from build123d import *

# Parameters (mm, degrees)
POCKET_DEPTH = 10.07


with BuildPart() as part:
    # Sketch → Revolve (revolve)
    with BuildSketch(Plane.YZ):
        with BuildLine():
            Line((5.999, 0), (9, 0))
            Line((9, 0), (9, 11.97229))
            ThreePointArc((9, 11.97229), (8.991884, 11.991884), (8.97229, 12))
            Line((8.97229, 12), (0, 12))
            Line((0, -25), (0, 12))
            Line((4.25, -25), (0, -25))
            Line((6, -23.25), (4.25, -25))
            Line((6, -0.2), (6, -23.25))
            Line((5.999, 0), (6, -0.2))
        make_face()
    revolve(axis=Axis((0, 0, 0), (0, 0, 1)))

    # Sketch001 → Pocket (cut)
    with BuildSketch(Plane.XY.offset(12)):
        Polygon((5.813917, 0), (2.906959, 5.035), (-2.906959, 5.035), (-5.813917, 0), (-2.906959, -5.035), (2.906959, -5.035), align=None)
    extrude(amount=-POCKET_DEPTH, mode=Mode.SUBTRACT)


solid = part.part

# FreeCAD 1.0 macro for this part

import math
import FreeCAD as App
import Part
import Sketcher

V = App.Vector
Q = App.Units.Quantity


def add_polygon(sketch, points):
    """Adds a closed chain of lines whose ends are joined by coincident constraints."""
    first, n = sketch.GeometryCount, len(points)
    for a, b in zip(points, points[1:] + points[:1]):
        sketch.addGeometry(Part.LineSegment(App.Vector(*a, 0), App.Vector(*b, 0)), False)
    for i in range(n):
        sketch.addConstraint(Sketcher.Constraint("Coincident", first + i, 2, first + (i + 1) % n, 1))

doc = App.newDocument("Part")
body = doc.addObject("PartDesign::Body", "Body")

sketch1 = body.newObject("Sketcher::SketchObject", "Sketch")
sketch1.AttachmentSupport = (doc.getObject("YZ_Plane"), [""])
sketch1.MapMode = "FlatFace"
sketch1.addGeometry(Part.LineSegment(V(5.999, 0, 0), V(9, 0, 0)), False)
sketch1.addGeometry(Part.LineSegment(V(9, 0, 0), V(9, 11.97229, 0)), False)
sketch1.addGeometry(Part.ArcOfCircle(Part.Circle(V(8.97229, 11.97229, 0), V(0, 0, 1), 0.02771), math.radians(-0.000502), math.radians(90.000502)), False)
sketch1.addGeometry(Part.LineSegment(V(8.97229, 12, 0), V(0, 12, 0)), False)
sketch1.addGeometry(Part.LineSegment(V(0, 12, 0), V(0, -25, 0)), False)
sketch1.addGeometry(Part.LineSegment(V(0, -25, 0), V(4.25, -25, 0)), False)
sketch1.addGeometry(Part.LineSegment(V(4.25, -25, 0), V(6, -23.25, 0)), False)
sketch1.addGeometry(Part.LineSegment(V(6, -23.25, 0), V(6, -0.2, 0)), False)
sketch1.addGeometry(Part.LineSegment(V(6, -0.2, 0), V(5.999, 0, 0)), False)
sketch1.addConstraint(Sketcher.Constraint("Coincident", 0, 2, 1, 1))
sketch1.addConstraint(Sketcher.Constraint("Coincident", 1, 2, 2, 1))
sketch1.addConstraint(Sketcher.Constraint("Coincident", 2, 2, 3, 1))
sketch1.addConstraint(Sketcher.Constraint("Coincident", 3, 2, 4, 1))
sketch1.addConstraint(Sketcher.Constraint("Coincident", 4, 2, 5, 1))
sketch1.addConstraint(Sketcher.Constraint("Coincident", 5, 2, 6, 1))
sketch1.addConstraint(Sketcher.Constraint("Coincident", 6, 2, 7, 1))
sketch1.addConstraint(Sketcher.Constraint("Coincident", 7, 2, 8, 1))
sketch1.addConstraint(Sketcher.Constraint("Coincident", 8, 2, 0, 1))
sketch1.addConstraint(Sketcher.Constraint("Horizontal", 0))
sketch1.addConstraint(Sketcher.Constraint("Vertical", 1))
sketch1.addConstraint(Sketcher.Constraint("Horizontal", 3))
sketch1.addConstraint(Sketcher.Constraint("Vertical", 4))
sketch1.addConstraint(Sketcher.Constraint("Horizontal", 5))
sketch1.addConstraint(Sketcher.Constraint("Vertical", 7))
sketch1.addConstraint(Sketcher.Constraint("PointOnObject", 0, 2, -1))
sketch1.addConstraint(Sketcher.Constraint("PointOnObject", 3, 2, -2))
sketch1.addConstraint(Sketcher.Constraint("Horizontal", 2, 3, 1, 2))
sketch1.addConstraint(Sketcher.Constraint("DistanceY", 4, 2, 4, 1, 37.0))
sketch1.addConstraint(Sketcher.Constraint("Angle", 6, Q("45 deg")))
sketch1.addConstraint(Sketcher.Constraint("DistanceX", -1, 1, 0, 2, 9.0))
sketch1.addConstraint(Sketcher.Constraint("DistanceY", -1, 1, 2, 2, 12.0))
sketch1.addConstraint(Sketcher.Constraint("DistanceX", -1, 1, 6, 2, 6.0))
sketch1.addConstraint(Sketcher.Constraint("DistanceX", 5, 1, 5, 2, 4.25))
sketch1.addConstraint(Sketcher.Constraint("DistanceY", 7, 1, 7, 2, 23.05))
sketch1.addConstraint(Sketcher.Constraint("DistanceX", 0, 1, 0, 2, 3.001))
sketch1.addConstraint(Sketcher.Constraint("Radius", 2, 0.02771))
sketch1.addConstraint(Sketcher.Constraint("DistanceX", 3, 2, 3, 1, 8.97229))
revolution = body.newObject("PartDesign::Revolution", "Revolution")
revolution.Profile = sketch1
revolution.ReferenceAxis = (sketch1, ["V_Axis"])
revolution.Angle = 360

sketch2 = body.newObject("Sketcher::SketchObject", "Sketch001")
sketch2.AttachmentSupport = (doc.getObject("XY_Plane"), [""])
sketch2.MapMode = "FlatFace"
sketch2.AttachmentOffset = App.Placement(V(0, 0, 12), App.Rotation())
add_polygon(sketch2, [(5.813917, 0), (2.906959, 5.035), (-2.906959, 5.035), (-5.813917, 0), (-2.906959, -5.035), (2.906959, -5.035)])
sketch2.addConstraint(Sketcher.Constraint("Horizontal", 1))
sketch2.addConstraint(Sketcher.Constraint("Horizontal", 4))
sketch2.addConstraint(Sketcher.Constraint("Symmetric", 0, 2, 3, 2, -1, 1))
sketch2.addConstraint(Sketcher.Constraint("Symmetric", 2, 2, 5, 2, -1, 1))
sketch2.addConstraint(Sketcher.Constraint("PointOnObject", 2, 2, -1))
sketch2.addConstraint(Sketcher.Constraint("Parallel", 2, 5))
sketch2.addConstraint(Sketcher.Constraint("Vertical", 1, 2, 3, 2))
sketch2.addConstraint(Sketcher.Constraint("Angle", 0, Q("119.999995 deg")))
sketch2.addConstraint(Sketcher.Constraint("DistanceY", 3, 2, 1, 2, 10.07))
sketch2.addConstraint(Sketcher.Constraint("DistanceX", 1, 2, 1, 1, 5.813918))
pocket1 = body.newObject("PartDesign::Pocket", "Pocket")
pocket1.Profile = sketch2
pocket1.Length = 10.07

doc.recompute()
